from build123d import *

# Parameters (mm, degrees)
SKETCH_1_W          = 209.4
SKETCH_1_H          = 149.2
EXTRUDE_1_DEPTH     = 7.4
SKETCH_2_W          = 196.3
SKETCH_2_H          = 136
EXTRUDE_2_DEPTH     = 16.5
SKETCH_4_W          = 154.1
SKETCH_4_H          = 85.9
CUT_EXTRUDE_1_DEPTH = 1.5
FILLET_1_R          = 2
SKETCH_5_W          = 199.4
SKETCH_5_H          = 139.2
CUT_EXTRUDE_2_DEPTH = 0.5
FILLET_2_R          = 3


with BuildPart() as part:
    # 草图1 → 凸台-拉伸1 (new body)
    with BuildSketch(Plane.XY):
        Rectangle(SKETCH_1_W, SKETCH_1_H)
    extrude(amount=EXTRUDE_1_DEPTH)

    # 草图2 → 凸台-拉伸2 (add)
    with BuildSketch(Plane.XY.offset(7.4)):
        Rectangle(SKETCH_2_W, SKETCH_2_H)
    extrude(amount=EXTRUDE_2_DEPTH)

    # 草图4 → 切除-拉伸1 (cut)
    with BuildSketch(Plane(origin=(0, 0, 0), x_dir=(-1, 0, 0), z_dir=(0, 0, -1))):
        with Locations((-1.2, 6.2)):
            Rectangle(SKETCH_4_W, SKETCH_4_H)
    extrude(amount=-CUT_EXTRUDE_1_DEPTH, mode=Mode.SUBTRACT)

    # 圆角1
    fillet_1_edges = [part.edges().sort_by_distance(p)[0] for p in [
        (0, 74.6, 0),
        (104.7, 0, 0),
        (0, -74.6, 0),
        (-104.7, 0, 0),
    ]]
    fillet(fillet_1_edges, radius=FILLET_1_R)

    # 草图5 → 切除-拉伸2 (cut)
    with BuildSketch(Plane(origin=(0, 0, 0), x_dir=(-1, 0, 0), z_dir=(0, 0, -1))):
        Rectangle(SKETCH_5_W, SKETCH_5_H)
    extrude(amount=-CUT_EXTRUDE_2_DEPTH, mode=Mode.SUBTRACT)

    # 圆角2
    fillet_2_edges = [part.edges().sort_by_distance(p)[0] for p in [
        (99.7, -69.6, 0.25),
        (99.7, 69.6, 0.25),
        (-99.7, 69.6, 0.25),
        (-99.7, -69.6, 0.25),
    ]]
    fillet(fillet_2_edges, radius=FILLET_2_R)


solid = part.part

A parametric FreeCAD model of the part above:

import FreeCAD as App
import Part
import Sketcher
from FreeCAD import Vector
Q = App.Units.Quantity


def edges_at(feature, points):
    """Names of the edges that pass closest to the given points."""
    edges = feature.Shape.Edges
    near = lambda p: min(range(len(edges)), key=lambda i: edges[i].distToShape(Part.Vertex(*p))[0])
    return sorted({f"Edge{near(p) + 1}" for p in points})

doc = App.newDocument("Part")
body = doc.addObject("PartDesign::Body", "Body")

# Sketch on XY plane
sketch1 = body.newObject("Sketcher::SketchObject", "Sketch")
sketch1.AttachmentSupport = (doc.getObject("XY_Plane"), [""])
sketch1.MapMode = "FlatFace"
sketch1.addGeometry([
    Part.LineSegment(Vector(-105, 75, 0), Vector(-105, -75, 0)),
    Part.LineSegment(Vector(-105, -75, 0), Vector(105, -75, 0)),
    Part.LineSegment(Vector(105, -75, 0), Vector(105, 75, 0)),
    Part.LineSegment(Vector(105, 75, 0), Vector(-105, 75, 0)),
], False)
sketch1.addConstraint([
    Sketcher.Constraint("Coincident", 0, 2, 1, 1),
    Sketcher.Constraint("Coincident", 1, 2, 2, 1),
    Sketcher.Constraint("Coincident", 2, 2, 3, 1),
    Sketcher.Constraint("Coincident", 3, 2, 0, 1),
    Sketcher.Constraint("Vertical", 0),
    Sketcher.Constraint("Horizontal", 1),
    Sketcher.Constraint("Vertical", 2),
    Sketcher.Constraint("Horizontal", 3),
    Sketcher.Constraint("Symmetric", 0, 2, 2, 2, -1, 1),
    Sketcher.Constraint("DistanceX", 1, 1, 1, 2, Q("209.4 mm")),
    Sketcher.Constraint("DistanceY", 0, 2, 0, 1, Q("149.2 mm")),
])
pad1 = body.newObject("PartDesign::Pad", "Pad")
pad1.Profile = sketch1
pad1.Length = 7.4

# Sketch on XY plane
sketch2 = body.newObject("Sketcher::SketchObject", "Sketch001")
sketch2.AttachmentSupport = (doc.getObject("XY_Plane"), [""])
sketch2.MapMode = "FlatFace"
sketch2.AttachmentOffset = App.Placement(Vector(0, 0, 7.4), App.Rotation())
sketch2.addGeometry([
    Part.LineSegment(Vector(-98, 68, 0), Vector(-98, -68, 0)),
    Part.LineSegment(Vector(-98, -68, 0), Vector(98, -68, 0)),
    Part.LineSegment(Vector(98, -68, 0), Vector(98, 68, 0)),
    Part.LineSegment(Vector(98, 68, 0), Vector(-98, 68, 0)),
], False)
sketch2.addConstraint([
    Sketcher.Constraint("Coincident", 0, 2, 1, 1),
    Sketcher.Constraint("Coincident", 1, 2, 2, 1),
    Sketcher.Constraint("Coincident", 2, 2, 3, 1),
    Sketcher.Constraint("Coincident", 3, 2, 0, 1),
    Sketcher.Constraint("Vertical", 0),
    Sketcher.Constraint("Horizontal", 1),
    Sketcher.Constraint("Vertical", 2),
    Sketcher.Constraint("Horizontal", 3),
    Sketcher.Constraint("Symmetric", 0, 2, 2, 2, -1, 1),
    Sketcher.Constraint("DistanceY", 0, 2, 0, 1, Q("136 mm")),
    Sketcher.Constraint("DistanceX", 1, 1, 1, 2, Q("196.3 mm")),
])
pad2 = body.newObject("PartDesign::Pad", "Pad001")
pad2.Profile = sketch2
pad2.Length = 16.5

# Sketch on XY plane
sketch3 = body.newObject("Sketcher::SketchObject", "Sketch002")
sketch3.AttachmentSupport = (doc.getObject("XY_Plane"), [""])
sketch3.MapMode = "FlatFace"
sketch3.addGeometry([
    Part.LineSegment(Vector(78, 49, 0), Vector(78, -37, 0)),
    Part.LineSegment(Vector(78, -37, 0), Vector(-76, -37, 0)),
    Part.LineSegment(Vector(-76, -37, 0), Vector(-76, 49, 0)),
    Part.LineSegment(Vector(-76, 49, 0), Vector(78, 49, 0)),
], False)
sketch3.addConstraint([
    Sketcher.Constraint("Coincident", 0, 2, 1, 1),
    Sketcher.Constraint("Coincident", 1, 2, 2, 1),
    Sketcher.Constraint("Coincident", 2, 2, 3, 1),
    Sketcher.Constraint("Coincident", 3, 2, 0, 1),
    Sketcher.Constraint("Vertical", 0),
    Sketcher.Constraint("Horizontal", 1),
    Sketcher.Constraint("Vertical", 2),
    Sketcher.Constraint("Horizontal", 3),
    Sketcher.Constraint("DistanceX", 1, 2, 1, 1, Q("154.1 mm")),
    Sketcher.Constraint("DistanceY", 0, 2, 0, 1, Q("85.9 mm")),
    Sketcher.Constraint("DistanceX", -1, 1, 0, 2, Q("78.25 mm")),
    Sketcher.Constraint("DistanceY", 0, 2, -1, 1, Q("36.75 mm")),
])
pocket1 = body.newObject("PartDesign::Pocket", "Pocket")
pocket1.Profile = sketch3
pocket1.Length = 1.5
pocket1.Reversed = True
doc.recompute()

fillet = body.newObject("PartDesign::Fillet", "Fillet")
fillet.Base = (pocket1, edges_at(pocket1, [
    (0, 74.6, 0),
    (104.7, 0, 0),
    (0, -74.6, 0),
    (-104.7, 0, 0),
]))
fillet.Radius = 2

# Sketch on XY plane
sketch4 = body.newObject("Sketcher::SketchObject", "Sketch003")
sketch4.AttachmentSupport = (doc.getObject("XY_Plane"), [""])
sketch4.MapMode = "FlatFace"
sketch4.addGeometry([
    Part.LineSegment(Vector(100, 70, 0), Vector(100, -70, 0)),
    Part.LineSegment(Vector(100, -70, 0), Vector(-100, -70, 0)),
    Part.LineSegment(Vector(-100, -70, 0), Vector(-100, 70, 0)),
    Part.LineSegment(Vector(-100, 70, 0), Vector(100, 70, 0)),
], False)
sketch4.addConstraint([
    Sketcher.Constraint("Coincident", 0, 2, 1, 1),
    Sketcher.Constraint("Coincident", 1, 2, 2, 1),
    Sketcher.Constraint("Coincident", 2, 2, 3, 1),
    Sketcher.Constraint("Coincident", 3, 2, 0, 1),
    Sketcher.Constraint("Vertical", 0),
    Sketcher.Constraint("Horizontal", 1),
    Sketcher.Constraint("Vertical", 2),
    Sketcher.Constraint("Horizontal", 3),
    Sketcher.Constraint("Symmetric", 0, 2, 2, 2, -1, 1),
    Sketcher.Constraint("DistanceX", 1, 2, 1, 1, Q("199.4 mm")),
    Sketcher.Constraint("DistanceY", 0, 2, 0, 1, Q("139.2 mm")),
])
pocket2 = body.newObject("PartDesign::Pocket", "Pocket001")
pocket2.Profile = sketch4
pocket2.Length = 0.5
pocket2.Reversed = True
doc.recompute()

fillet2 = body.newObject("PartDesign::Fillet", "Fillet001")
fillet2.Base = (pocket2, edges_at(pocket2, [
    (99.7, -69.6, 0.25),
    (99.7, 69.6, 0.25),
    (-99.7, 69.6, 0.25),
    (-99.7, -69.6, 0.25),
]))
fillet2.Radius = 3

doc.recompute()
